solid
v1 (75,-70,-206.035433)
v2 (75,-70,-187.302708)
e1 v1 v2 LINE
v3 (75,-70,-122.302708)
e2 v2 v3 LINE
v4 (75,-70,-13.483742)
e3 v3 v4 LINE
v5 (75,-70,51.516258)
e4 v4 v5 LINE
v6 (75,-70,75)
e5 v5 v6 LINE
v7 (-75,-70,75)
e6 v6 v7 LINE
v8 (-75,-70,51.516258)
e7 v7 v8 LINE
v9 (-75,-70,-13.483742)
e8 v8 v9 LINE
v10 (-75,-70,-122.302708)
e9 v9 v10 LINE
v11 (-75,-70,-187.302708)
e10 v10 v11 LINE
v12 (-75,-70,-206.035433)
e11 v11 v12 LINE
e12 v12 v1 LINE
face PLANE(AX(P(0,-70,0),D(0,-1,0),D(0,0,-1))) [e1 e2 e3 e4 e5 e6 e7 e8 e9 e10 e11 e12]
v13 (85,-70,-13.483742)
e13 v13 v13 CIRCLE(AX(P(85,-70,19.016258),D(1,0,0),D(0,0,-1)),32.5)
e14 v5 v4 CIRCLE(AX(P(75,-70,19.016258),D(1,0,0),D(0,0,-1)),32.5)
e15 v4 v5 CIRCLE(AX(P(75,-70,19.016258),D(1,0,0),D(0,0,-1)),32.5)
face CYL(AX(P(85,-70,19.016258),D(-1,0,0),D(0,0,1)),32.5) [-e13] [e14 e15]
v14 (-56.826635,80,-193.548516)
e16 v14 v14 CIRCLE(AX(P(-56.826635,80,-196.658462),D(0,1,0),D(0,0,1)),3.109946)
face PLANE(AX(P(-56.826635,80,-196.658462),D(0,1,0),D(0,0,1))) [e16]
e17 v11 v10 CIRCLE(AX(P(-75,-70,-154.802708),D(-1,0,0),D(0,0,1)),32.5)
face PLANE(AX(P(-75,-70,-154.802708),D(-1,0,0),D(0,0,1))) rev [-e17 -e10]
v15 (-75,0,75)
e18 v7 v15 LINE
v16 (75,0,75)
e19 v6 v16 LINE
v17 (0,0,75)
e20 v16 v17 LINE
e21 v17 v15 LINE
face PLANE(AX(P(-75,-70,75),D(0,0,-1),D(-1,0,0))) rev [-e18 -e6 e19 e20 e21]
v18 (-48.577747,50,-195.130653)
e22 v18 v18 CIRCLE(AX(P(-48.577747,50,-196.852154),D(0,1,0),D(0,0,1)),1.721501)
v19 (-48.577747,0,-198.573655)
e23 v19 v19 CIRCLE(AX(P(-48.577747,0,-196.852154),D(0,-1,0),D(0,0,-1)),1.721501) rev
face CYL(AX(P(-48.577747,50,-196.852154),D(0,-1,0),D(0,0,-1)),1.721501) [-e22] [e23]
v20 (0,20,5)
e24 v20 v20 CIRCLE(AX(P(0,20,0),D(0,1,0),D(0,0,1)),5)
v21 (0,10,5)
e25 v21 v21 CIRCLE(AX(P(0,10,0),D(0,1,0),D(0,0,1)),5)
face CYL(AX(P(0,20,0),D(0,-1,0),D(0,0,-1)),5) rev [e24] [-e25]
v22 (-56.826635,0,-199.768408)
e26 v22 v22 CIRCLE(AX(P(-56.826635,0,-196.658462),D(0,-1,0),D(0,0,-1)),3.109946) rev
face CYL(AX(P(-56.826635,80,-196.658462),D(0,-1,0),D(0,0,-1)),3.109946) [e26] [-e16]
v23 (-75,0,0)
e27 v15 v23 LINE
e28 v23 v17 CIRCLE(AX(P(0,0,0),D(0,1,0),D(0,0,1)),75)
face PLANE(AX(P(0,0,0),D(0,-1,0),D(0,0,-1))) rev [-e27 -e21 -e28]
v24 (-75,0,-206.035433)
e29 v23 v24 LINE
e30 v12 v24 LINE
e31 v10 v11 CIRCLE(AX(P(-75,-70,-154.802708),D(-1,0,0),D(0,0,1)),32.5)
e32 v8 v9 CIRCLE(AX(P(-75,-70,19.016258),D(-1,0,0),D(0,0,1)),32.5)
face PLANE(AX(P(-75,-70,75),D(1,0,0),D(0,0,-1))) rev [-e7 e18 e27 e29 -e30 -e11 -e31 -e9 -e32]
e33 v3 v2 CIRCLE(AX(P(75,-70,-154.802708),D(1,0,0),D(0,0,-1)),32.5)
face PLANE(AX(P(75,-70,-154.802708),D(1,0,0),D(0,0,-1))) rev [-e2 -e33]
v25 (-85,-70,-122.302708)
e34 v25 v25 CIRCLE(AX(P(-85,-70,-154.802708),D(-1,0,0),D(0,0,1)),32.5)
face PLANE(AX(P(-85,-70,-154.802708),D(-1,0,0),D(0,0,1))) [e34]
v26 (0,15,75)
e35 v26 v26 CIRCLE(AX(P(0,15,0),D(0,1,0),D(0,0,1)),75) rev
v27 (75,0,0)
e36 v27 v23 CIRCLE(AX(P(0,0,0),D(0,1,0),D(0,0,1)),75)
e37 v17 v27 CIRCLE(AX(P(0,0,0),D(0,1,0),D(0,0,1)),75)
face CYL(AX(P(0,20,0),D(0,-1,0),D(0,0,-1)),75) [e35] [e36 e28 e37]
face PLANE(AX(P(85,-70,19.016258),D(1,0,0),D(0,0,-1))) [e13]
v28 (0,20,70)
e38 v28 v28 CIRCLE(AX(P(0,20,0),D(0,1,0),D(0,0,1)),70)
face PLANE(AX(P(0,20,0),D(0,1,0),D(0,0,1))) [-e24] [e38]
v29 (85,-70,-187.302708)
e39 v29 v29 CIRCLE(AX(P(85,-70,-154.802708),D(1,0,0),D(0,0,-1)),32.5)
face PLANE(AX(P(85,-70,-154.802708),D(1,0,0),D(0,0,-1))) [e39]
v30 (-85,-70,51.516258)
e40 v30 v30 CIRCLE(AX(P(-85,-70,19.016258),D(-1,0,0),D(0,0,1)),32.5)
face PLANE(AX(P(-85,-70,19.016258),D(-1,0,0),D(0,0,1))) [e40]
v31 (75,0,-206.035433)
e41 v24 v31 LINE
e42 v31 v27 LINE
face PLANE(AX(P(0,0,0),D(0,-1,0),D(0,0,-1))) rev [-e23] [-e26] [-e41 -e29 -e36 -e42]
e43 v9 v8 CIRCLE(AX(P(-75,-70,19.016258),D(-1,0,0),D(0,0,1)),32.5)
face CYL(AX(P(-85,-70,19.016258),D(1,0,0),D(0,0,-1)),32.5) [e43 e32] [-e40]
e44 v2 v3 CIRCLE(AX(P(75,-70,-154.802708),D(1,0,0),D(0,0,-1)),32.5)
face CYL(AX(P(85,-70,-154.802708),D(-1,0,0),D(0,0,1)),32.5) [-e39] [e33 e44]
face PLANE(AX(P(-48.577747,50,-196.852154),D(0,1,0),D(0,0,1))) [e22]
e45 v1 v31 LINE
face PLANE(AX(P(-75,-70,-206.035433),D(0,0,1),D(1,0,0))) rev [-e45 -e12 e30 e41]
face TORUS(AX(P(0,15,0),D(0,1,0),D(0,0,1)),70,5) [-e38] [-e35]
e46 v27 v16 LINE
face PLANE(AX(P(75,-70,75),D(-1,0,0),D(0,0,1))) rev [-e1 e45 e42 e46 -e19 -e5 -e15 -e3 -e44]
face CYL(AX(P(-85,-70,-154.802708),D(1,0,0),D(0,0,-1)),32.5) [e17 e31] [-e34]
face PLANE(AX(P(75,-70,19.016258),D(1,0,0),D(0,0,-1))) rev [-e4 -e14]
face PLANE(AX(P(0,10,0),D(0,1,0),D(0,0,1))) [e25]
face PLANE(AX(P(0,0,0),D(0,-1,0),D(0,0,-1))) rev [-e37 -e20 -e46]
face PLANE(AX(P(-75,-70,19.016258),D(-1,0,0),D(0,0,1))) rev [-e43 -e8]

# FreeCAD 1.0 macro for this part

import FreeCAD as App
import Part
import Sketcher

V = App.Vector
Q = App.Units.Quantity


def edges_at(feature, points):
    """Names of the edges that pass closest to the given points."""
    edges = feature.Shape.Edges
    near = lambda p: min(range(len(edges)), key=lambda i: edges[i].distToShape(Part.Vertex(*p))[0])
    return sorted({f"Edge{near(p) + 1}" for p in points})

doc = App.newDocument("Part")
params = doc.addObject("Spreadsheet::Sheet", "Params")
for row, (alias, value) in enumerate([
    ("sketch1_diameter", "150 mm"),
    ("pad1_length", "20 mm"),
    ("fillet_radius", "5 mm"),
    ("sketch2_diameter", "10 mm"),
    ("pocket1_length", "10 mm"),
    ("sketch3_width", "150 mm"),
    ("pad2_length", "70 mm"),
    ("sketch4_diameter", "65 mm"),
    ("pad3_length", "10 mm"),
    ("sketch5_diameter", "65 mm"),
    ("pad4_length", "10 mm"),
    ("sketch6_diameter", "65 mm"),
    ("pad5_length", "10 mm"),
    ("sketch7_diameter", "65 mm"),
    ("pad6_length", "10 mm"),
    ("pad7_length", "80 mm"),
    ("pad8_length", "50 mm"),
], start=1):
    params.set(f"A{row}", alias)
    params.set(f"B{row}", "=" + value)
    params.setAlias(f"B{row}", alias)

body = doc.addObject("PartDesign::Body", "Body")

# Sketch on XZ plane
sketch1 = body.newObject("Sketcher::SketchObject", "Sketch")
sketch1.AttachmentSupport = (doc.getObject("XZ_Plane"), [""])
sketch1.MapMode = "FlatFace"
sketch1.addGeometry(Part.Circle(V(0, 0, 0), V(0, 0, 1), 75), False)
sketch1.addConstraint(Sketcher.Constraint("Coincident", 0, 3, -1, 1))
sketch1.addConstraint(Sketcher.Constraint("Diameter", 0, Q("150 mm")))
sketch1.setExpression("Constraints[1]", "Params.sketch1_diameter")
pad1 = body.newObject("PartDesign::Pad", "Pad")
pad1.Profile = sketch1
pad1.setExpression("Length", "Params.pad1_length")
pad1.Reversed = True
doc.recompute()

fillet = body.newObject("PartDesign::Fillet", "Fillet")
fillet.Base = (pad1, edges_at(pad1, [(0, 20, -75)]))
fillet.setExpression("Radius", "Params.fillet_radius")

# Sketch on XZ plane
sketch2 = body.newObject("Sketcher::SketchObject", "Sketch001")
sketch2.AttachmentSupport = (doc.getObject("XZ_Plane"), [""])
sketch2.MapMode = "FlatFace"
sketch2.AttachmentOffset = App.Placement(V(0, 0, -10), App.Rotation())
sketch2.addGeometry(Part.Circle(V(0, 0, 0), V(0, 0, 1), 5), False)
sketch2.addConstraint(Sketcher.Constraint("Coincident", 0, 3, -1, 1))
sketch2.addConstraint(Sketcher.Constraint("Diameter", 0, Q("10 mm")))
sketch2.setExpression("Constraints[1]", "Params.sketch2_diameter")
pocket1 = body.newObject("PartDesign::Pocket", "Pocket")
pocket1.Profile = sketch2
pocket1.setExpression("Length", "Params.pocket1_length")

# Sketch on XZ plane
sketch3 = body.newObject("Sketcher::SketchObject", "Sketch002")
sketch3.AttachmentSupport = (doc.getObject("XZ_Plane"), [""])
sketch3.MapMode = "FlatFace"
sketch3.addGeometry(Part.LineSegment(V(-75, 75, 0), V(-75, -206, 0)), False)
sketch3.addGeometry(Part.LineSegment(V(-75, -206, 0), V(75, -206, 0)), False)
sketch3.addGeometry(Part.LineSegment(V(75, -206, 0), V(75, 75, 0)), False)
sketch3.addGeometry(Part.LineSegment(V(75, 75, 0), V(-75, 75, 0)), False)
sketch3.addConstraint(Sketcher.Constraint("Coincident", 0, 2, 1, 1))
sketch3.addConstraint(Sketcher.Constraint("Coincident", 1, 2, 2, 1))
sketch3.addConstraint(Sketcher.Constraint("Coincident", 2, 2, 3, 1))
sketch3.addConstraint(Sketcher.Constraint("Coincident", 3, 2, 0, 1))
sketch3.addConstraint(Sketcher.Constraint("Vertical", 0))
sketch3.addConstraint(Sketcher.Constraint("Horizontal", 1))
sketch3.addConstraint(Sketcher.Constraint("Vertical", 2))
sketch3.addConstraint(Sketcher.Constraint("Horizontal", 3))
sketch3.addConstraint(Sketcher.Constraint("DistanceX", 1, 1, 1, 2, Q("150 mm")))
sketch3.addConstraint(Sketcher.Constraint("DistanceX", 0, 2, -1, 1, Q("75 mm")))
sketch3.addConstraint(Sketcher.Constraint("DistanceY", -1, 1, 2, 2, Q("75 mm")))
sketch3.addConstraint(Sketcher.Constraint("DistanceY", 0, 2, 0, 1, Q("281.035433 mm")))
sketch3.setExpression("Constraints[8]", "Params.sketch3_width")
pad2 = body.newObject("PartDesign::Pad", "Pad001")
pad2.Profile = sketch3
pad2.setExpression("Length", "Params.pad2_length")

# Sketch on YZ plane
sketch4 = body.newObject("Sketcher::SketchObject", "Sketch003")
sketch4.AttachmentSupport = (doc.getObject("YZ_Plane"), [""])
sketch4.MapMode = "FlatFace"
sketch4.AttachmentOffset = App.Placement(V(0, 0, -75), App.Rotation())
sketch4.addGeometry(Part.Circle(V(-70, -155, 0), V(0, 0, 1), 32), False)
sketch4.addConstraint(Sketcher.Constraint("Diameter", 0, Q("65 mm")))
sketch4.addConstraint(Sketcher.Constraint("DistanceX", 0, 3, -1, 1, Q("70 mm")))
sketch4.addConstraint(Sketcher.Constraint("DistanceY", 0, 3, -1, 1, Q("154.802708 mm")))
sketch4.setExpression("Constraints[0]", "Params.sketch4_diameter")
pad3 = body.newObject("PartDesign::Pad", "Pad002")
pad3.Profile = sketch4
pad3.setExpression("Length", "Params.pad3_length")
pad3.Reversed = True

# Sketch on YZ plane
sketch5 = body.newObject("Sketcher::SketchObject", "Sketch004")
sketch5.AttachmentSupport = (doc.getObject("YZ_Plane"), [""])
sketch5.MapMode = "FlatFace"
sketch5.AttachmentOffset = App.Placement(V(0, 0, -75), App.Rotation())
sketch5.addGeometry(Part.Circle(V(-70, 19, 0), V(0, 0, 1), 32), False)
sketch5.addConstraint(Sketcher.Constraint("Diameter", 0, Q("65 mm")))
sketch5.addConstraint(Sketcher.Constraint("DistanceX", 0, 3, -1, 1, Q("70 mm")))
sketch5.addConstraint(Sketcher.Constraint("DistanceY", -1, 1, 0, 3, Q("19.016258 mm")))
sketch5.setExpression("Constraints[0]", "Params.sketch5_diameter")
pad4 = body.newObject("PartDesign::Pad", "Pad003")
pad4.Profile = sketch5
pad4.setExpression("Length", "Params.pad4_length")
pad4.Reversed = True

# Sketch on YZ plane
sketch6 = body.newObject("Sketcher::SketchObject", "Sketch005")
sketch6.AttachmentSupport = (doc.getObject("YZ_Plane"), [""])
sketch6.MapMode = "FlatFace"
sketch6.AttachmentOffset = App.Placement(V(0, 0, 85), App.Rotation())
sketch6.addGeometry(Part.Circle(V(-70, 19, 0), V(0, 0, 1), 32), False)
sketch6.addConstraint(Sketcher.Constraint("Diameter", 0, Q("65 mm")))
sketch6.addConstraint(Sketcher.Constraint("DistanceX", 0, 3, -1, 1, Q("70 mm")))
sketch6.addConstraint(Sketcher.Constraint("DistanceY", -1, 1, 0, 3, Q("19.016258 mm")))
sketch6.setExpression("Constraints[0]", "Params.sketch6_diameter")
pad5 = body.newObject("PartDesign::Pad", "Pad004")
pad5.Profile = sketch6
pad5.setExpression("Length", "Params.pad5_length")
pad5.Reversed = True

# Sketch on YZ plane
sketch7 = body.newObject("Sketcher::SketchObject", "Sketch006")
sketch7.AttachmentSupport = (doc.getObject("YZ_Plane"), [""])
sketch7.MapMode = "FlatFace"
sketch7.AttachmentOffset = App.Placement(V(0, 0, 85), App.Rotation())
sketch7.addGeometry(Part.Circle(V(-70, -155, 0), V(0, 0, 1), 32), False)
sketch7.addConstraint(Sketcher.Constraint("Diameter", 0, Q("65 mm")))
sketch7.addConstraint(Sketcher.Constraint("DistanceX", 0, 3, -1, 1, Q("70 mm")))
sketch7.addConstraint(Sketcher.Constraint("DistanceY", 0, 3, -1, 1, Q("154.802708 mm")))
sketch7.setExpression("Constraints[0]", "Params.sketch7_diameter")
pad6 = body.newObject("PartDesign::Pad", "Pad005")
pad6.Profile = sketch7
pad6.setExpression("Length", "Params.pad6_length")
pad6.Reversed = True

# Sketch on XZ plane
sketch8 = body.newObject("Sketcher::SketchObject", "Sketch007")
sketch8.AttachmentSupport = (doc.getObject("XZ_Plane"), [""])
sketch8.MapMode = "FlatFace"
sketch8.addGeometry(Part.Circle(V(-56.8, -196.7, 0), V(0, 0, 1), 3.1), False)
sketch8.addConstraint(Sketcher.Constraint("Diameter", 0, Q("6.219891 mm")))
sketch8.addConstraint(Sketcher.Constraint("DistanceY", 0, 3, -1, 1, Q("196.658462 mm")))
sketch8.addConstraint(Sketcher.Constraint("DistanceX", 0, 3, -1, 1, Q("56.826635 mm")))
pad7 = body.newObject("PartDesign::Pad", "Pad006")
pad7.Profile = sketch8
pad7.setExpression("Length", "Params.pad7_length")
pad7.Reversed = True

# Sketch on XZ plane
sketch9 = body.newObject("Sketcher::SketchObject", "Sketch008")
sketch9.AttachmentSupport = (doc.getObject("XZ_Plane"), [""])
sketch9.MapMode = "FlatFace"
sketch9.addGeometry(Part.Circle(V(-48.6, -196.9, 0), V(0, 0, 1), 1.7), False)
sketch9.addConstraint(Sketcher.Constraint("Diameter", 0, Q("3.443002 mm")))
sketch9.addConstraint(Sketcher.Constraint("DistanceX", 0, 3, -1, 1, Q("48.577747 mm")))
sketch9.addConstraint(Sketcher.Constraint("DistanceY", 0, 3, -1, 1, Q("196.852154 mm")))
pad8 = body.newObject("PartDesign::Pad", "Pad007")
pad8.Profile = sketch9
pad8.setExpression("Length", "Params.pad8_length")
pad8.Reversed = True

doc.recompute()
